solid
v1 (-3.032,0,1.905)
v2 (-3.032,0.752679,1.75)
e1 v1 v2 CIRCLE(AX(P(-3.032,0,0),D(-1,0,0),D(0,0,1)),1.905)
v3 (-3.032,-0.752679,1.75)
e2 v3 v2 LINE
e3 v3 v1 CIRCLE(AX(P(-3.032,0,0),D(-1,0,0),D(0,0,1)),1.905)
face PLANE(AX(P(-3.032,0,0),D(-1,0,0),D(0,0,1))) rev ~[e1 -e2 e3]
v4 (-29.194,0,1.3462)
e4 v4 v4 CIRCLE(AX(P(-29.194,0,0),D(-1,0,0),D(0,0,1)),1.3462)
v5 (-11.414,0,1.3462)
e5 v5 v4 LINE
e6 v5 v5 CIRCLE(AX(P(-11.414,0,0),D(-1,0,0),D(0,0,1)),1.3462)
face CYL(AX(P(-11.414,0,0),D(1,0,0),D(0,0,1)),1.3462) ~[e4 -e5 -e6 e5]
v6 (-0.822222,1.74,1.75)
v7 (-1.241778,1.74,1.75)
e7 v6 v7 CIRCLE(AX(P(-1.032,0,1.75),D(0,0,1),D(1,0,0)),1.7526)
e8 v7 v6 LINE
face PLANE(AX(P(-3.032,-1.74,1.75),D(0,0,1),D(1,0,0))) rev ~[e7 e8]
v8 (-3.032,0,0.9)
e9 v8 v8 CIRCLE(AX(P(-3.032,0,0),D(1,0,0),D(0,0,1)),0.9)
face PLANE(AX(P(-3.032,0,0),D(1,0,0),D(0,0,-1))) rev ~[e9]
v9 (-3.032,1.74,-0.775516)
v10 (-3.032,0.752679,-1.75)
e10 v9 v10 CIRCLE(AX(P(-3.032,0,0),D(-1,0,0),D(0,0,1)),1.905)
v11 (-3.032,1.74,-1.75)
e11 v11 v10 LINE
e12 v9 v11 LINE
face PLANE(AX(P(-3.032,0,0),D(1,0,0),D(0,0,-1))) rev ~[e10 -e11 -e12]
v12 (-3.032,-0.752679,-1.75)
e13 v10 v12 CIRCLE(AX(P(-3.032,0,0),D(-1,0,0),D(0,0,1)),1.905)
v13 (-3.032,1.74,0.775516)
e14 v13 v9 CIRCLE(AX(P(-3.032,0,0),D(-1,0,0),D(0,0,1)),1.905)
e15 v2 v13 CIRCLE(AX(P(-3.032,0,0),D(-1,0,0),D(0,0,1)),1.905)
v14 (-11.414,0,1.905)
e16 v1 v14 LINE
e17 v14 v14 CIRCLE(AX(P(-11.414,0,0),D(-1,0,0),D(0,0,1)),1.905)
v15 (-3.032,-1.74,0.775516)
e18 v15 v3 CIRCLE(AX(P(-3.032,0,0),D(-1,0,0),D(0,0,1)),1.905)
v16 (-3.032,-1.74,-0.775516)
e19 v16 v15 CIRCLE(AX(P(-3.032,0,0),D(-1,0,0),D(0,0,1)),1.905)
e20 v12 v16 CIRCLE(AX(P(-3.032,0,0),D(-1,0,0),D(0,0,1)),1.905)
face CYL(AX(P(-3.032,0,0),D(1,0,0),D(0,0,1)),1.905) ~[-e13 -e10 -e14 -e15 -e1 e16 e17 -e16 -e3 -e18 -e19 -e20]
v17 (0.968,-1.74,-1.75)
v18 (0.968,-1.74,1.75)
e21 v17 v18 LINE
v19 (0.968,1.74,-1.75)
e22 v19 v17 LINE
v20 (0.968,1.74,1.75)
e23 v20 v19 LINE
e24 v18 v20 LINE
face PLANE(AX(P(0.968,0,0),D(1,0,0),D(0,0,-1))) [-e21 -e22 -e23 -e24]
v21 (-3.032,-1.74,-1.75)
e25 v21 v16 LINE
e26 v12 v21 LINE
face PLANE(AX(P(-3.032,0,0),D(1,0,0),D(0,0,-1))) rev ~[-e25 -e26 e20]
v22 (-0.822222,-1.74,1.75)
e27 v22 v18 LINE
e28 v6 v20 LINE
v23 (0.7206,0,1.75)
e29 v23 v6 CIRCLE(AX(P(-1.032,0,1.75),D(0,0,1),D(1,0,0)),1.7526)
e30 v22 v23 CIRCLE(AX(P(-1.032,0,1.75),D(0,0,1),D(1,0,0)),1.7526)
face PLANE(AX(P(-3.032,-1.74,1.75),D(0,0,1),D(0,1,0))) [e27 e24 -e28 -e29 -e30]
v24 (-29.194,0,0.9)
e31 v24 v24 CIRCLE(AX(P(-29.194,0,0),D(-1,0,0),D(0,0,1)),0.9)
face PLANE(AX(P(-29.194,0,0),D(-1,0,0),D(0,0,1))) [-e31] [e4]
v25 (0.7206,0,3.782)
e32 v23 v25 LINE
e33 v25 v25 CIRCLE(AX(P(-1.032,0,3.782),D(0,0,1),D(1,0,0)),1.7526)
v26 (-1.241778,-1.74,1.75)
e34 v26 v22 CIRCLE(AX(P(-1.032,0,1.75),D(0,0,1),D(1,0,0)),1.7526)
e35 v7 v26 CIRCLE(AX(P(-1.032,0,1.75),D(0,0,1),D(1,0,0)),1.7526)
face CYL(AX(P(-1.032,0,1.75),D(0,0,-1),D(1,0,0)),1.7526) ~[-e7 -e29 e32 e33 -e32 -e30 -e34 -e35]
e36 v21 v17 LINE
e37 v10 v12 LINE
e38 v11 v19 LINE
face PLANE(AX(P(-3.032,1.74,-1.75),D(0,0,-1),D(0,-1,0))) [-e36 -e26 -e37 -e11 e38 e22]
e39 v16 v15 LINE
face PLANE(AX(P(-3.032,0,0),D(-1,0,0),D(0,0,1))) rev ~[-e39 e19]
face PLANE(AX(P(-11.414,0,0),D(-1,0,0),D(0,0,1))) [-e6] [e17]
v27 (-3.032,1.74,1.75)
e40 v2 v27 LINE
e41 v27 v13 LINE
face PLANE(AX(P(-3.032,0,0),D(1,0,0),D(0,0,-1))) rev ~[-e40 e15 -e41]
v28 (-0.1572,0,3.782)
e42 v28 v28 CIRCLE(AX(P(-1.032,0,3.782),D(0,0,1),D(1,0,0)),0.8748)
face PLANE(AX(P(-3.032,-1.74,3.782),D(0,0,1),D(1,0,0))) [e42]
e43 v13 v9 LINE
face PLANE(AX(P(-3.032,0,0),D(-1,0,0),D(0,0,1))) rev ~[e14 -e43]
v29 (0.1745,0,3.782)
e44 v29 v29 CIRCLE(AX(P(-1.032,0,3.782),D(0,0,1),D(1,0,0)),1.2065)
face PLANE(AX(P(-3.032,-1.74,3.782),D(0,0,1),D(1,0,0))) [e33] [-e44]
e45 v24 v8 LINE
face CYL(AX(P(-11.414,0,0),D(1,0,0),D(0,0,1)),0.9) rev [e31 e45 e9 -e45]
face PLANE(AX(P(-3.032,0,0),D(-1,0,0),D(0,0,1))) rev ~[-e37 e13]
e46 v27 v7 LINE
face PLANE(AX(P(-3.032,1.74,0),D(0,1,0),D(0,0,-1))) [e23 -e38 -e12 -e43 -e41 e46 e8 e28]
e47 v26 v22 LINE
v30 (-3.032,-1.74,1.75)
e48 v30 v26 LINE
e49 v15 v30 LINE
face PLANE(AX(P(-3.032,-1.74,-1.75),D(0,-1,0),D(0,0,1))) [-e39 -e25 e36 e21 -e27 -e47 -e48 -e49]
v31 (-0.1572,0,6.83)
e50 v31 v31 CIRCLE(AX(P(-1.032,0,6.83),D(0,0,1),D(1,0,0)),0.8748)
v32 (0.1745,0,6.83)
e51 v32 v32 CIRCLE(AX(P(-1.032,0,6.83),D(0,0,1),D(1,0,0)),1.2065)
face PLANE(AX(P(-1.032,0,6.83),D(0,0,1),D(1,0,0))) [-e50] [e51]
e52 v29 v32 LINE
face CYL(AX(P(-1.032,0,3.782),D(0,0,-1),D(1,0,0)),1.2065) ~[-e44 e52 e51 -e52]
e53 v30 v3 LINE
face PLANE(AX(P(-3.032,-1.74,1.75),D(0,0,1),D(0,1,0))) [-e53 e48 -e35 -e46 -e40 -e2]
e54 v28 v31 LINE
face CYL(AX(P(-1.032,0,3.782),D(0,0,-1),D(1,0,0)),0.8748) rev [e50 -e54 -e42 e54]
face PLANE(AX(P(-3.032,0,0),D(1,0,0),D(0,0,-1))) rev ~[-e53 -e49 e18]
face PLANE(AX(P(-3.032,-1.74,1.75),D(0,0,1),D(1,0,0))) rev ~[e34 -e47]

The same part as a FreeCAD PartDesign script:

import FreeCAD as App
import Part
import Sketcher
from FreeCAD import Vector
Q = App.Units.Quantity

doc = App.newDocument("Part")
params = doc.addObject("Spreadsheet::Sheet", "Params")
for row, (alias, value) in enumerate([
    ("sketch1_diameter", "0.095 in"),
    ("pad1_length", "1 mm"),
    ("pad2_length", "0.08 in"),
    ("sketch3_diameter", "0.15 in"),
    ("pad3_length", "0.33 in"),
    ("sketch4_diameter", "0.106 in"),
    ("pad4_length", "0.7 in"),
    ("sketch5_width", "0.137 in"),
    ("pad5_length", "4 mm"),
    ("sketch6_diameter", "0.138 in"),
    ("pad6_length", "0.08 in"),
    ("sketch7_diameter", "0.095 in"),
    ("pad7_length", "0.12 in"),
], start=1):
    params.set(f"A{row}", alias)
    params.set(f"B{row}", "=" + value)
    params.setAlias(f"B{row}", alias)

body = doc.addObject("PartDesign::Body", "Body")

# Sketch on YZ plane
sketch1 = body.newObject("Sketcher::SketchObject", "Sketch")
sketch1.AttachmentSupport = (doc.getObject("YZ_Plane"), [""])
sketch1.MapMode = "FlatFace"
sketch1.addGeometry([
    Part.Circle(Vector(0, 0, 0), Vector(0, 0, 1), 1.2),
    Part.Circle(Vector(0, 0, 0), Vector(0, 0, 1), 0.9),
], False)
sketch1.addConstraint([
    Sketcher.Constraint("Coincident", 0, 3, -1, 1),
    Sketcher.Constraint("Coincident", 1, 3, -1, 1),
    Sketcher.Constraint("Diameter", 0, Q("0.095 in")),
    Sketcher.Constraint("Diameter", 1, 1.8),
])
sketch1.setExpression("Constraints[2]", "Params.sketch1_diameter")
pad1 = body.newObject("PartDesign::Pad", "Pad")
pad1.Profile = sketch1
pad1.setExpression("Length", "Params.pad1_length")
pad1.Reversed = True

# Sketch on YZ plane
sketch2 = body.newObject("Sketcher::SketchObject", "Sketch001")
sketch2.AttachmentSupport = (doc.getObject("YZ_Plane"), [""])
sketch2.MapMode = "FlatFace"
sketch2.AttachmentOffset = App.Placement(Vector(0, 0, -1), App.Rotation())
sketch2.addGeometry([
    Part.Circle(Vector(0, 0, 0), Vector(0, 0, 1), 1),
    Part.Circle(Vector(0, 0, 0), Vector(0, 0, 1), 0.9),
], False)
sketch2.addConstraint([
    Sketcher.Constraint("Coincident", 0, 3, -1, 1),
    Sketcher.Constraint("Coincident", 1, 3, -1, 1),
    Sketcher.Constraint("Diameter", 0, 2.0),
    Sketcher.Constraint("Diameter", 1, 1.8),
])
pad2 = body.newObject("PartDesign::Pad", "Pad001")
pad2.Profile = sketch2
pad2.setExpression("Length", "Params.pad2_length")
pad2.Reversed = True

# Sketch on YZ plane
sketch3 = body.newObject("Sketcher::SketchObject", "Sketch002")
sketch3.AttachmentSupport = (doc.getObject("YZ_Plane"), [""])
sketch3.MapMode = "FlatFace"
sketch3.AttachmentOffset = App.Placement(Vector(0, 0, -3.032), App.Rotation())
sketch3.addGeometry([
    Part.Circle(Vector(0, 0, 0), Vector(0, 0, 1), 1.9),
    Part.Circle(Vector(0, 0, 0), Vector(0, 0, 1), 0.9),
], False)
sketch3.addConstraint([
    Sketcher.Constraint("Coincident", 0, 3, -1, 1),
    Sketcher.Constraint("Coincident", 1, 3, -1, 1),
    Sketcher.Constraint("Diameter", 0, Q("0.15 in")),
    Sketcher.Constraint("Diameter", 1, 1.8),
])
sketch3.setExpression("Constraints[2]", "Params.sketch3_diameter")
pad3 = body.newObject("PartDesign::Pad", "Pad002")
pad3.Profile = sketch3
pad3.setExpression("Length", "Params.pad3_length")
pad3.Reversed = True

# Sketch on YZ plane
sketch4 = body.newObject("Sketcher::SketchObject", "Sketch003")
sketch4.AttachmentSupport = (doc.getObject("YZ_Plane"), [""])
sketch4.MapMode = "FlatFace"
sketch4.AttachmentOffset = App.Placement(Vector(0, 0, -11.414), App.Rotation())
sketch4.addGeometry([
    Part.Circle(Vector(0, 0, 0), Vector(0, 0, 1), 1.3),
    Part.Circle(Vector(0, 0, 0), Vector(0, 0, 1), 0.9),
], False)
sketch4.addConstraint([
    Sketcher.Constraint("Coincident", 0, 3, -1, 1),
    Sketcher.Constraint("Coincident", 1, 3, -1, 1),
    Sketcher.Constraint("Diameter", 0, Q("0.106 in")),
    Sketcher.Constraint("Diameter", 1, 1.8),
])
sketch4.setExpression("Constraints[2]", "Params.sketch4_diameter")
pad4 = body.newObject("PartDesign::Pad", "Pad003")
pad4.Profile = sketch4
pad4.setExpression("Length", "Params.pad4_length")
pad4.Reversed = True

# Sketch on YZ plane
sketch5 = body.newObject("Sketcher::SketchObject", "Sketch004")
sketch5.AttachmentSupport = (doc.getObject("YZ_Plane"), [""])
sketch5.MapMode = "FlatFace"
sketch5.AttachmentOffset = App.Placement(Vector(0, 0, -3.032), App.Rotation())
sketch5.addGeometry([
    Part.LineSegment(Vector(1.7, -1.8, 0), Vector(1.7, 1.8, 0)),
    Part.LineSegment(Vector(1.7, 1.8, 0), Vector(-1.7, 1.8, 0)),
    Part.LineSegment(Vector(-1.7, 1.8, 0), Vector(-1.7, -1.8, 0)),
    Part.LineSegment(Vector(-1.7, -1.8, 0), Vector(1.7, -1.8, 0)),
], False)
sketch5.addConstraint([
    Sketcher.Constraint("Coincident", 0, 2, 1, 1),
    Sketcher.Constraint("Coincident", 1, 2, 2, 1),
    Sketcher.Constraint("Coincident", 2, 2, 3, 1),
    Sketcher.Constraint("Coincident", 3, 2, 0, 1),
    Sketcher.Constraint("Vertical", 0),
    Sketcher.Constraint("Horizontal", 1),
    Sketcher.Constraint("Vertical", 2),
    Sketcher.Constraint("Horizontal", 3),
    Sketcher.Constraint("Symmetric", 0, 2, 2, 2, -1, 1),
    Sketcher.Constraint("DistanceX", 1, 2, 1, 1, Q("0.137 in")),
    Sketcher.Constraint("DistanceY", 0, 1, 0, 2, Q("0.1378 in")),
])
sketch5.setExpression("Constraints[9]", "Params.sketch5_width")
pad5 = body.newObject("PartDesign::Pad", "Pad004")
pad5.Profile = sketch5
pad5.setExpression("Length", "Params.pad5_length")

# Sketch on XY plane
sketch6 = body.newObject("Sketcher::SketchObject", "Sketch005")
sketch6.AttachmentSupport = (doc.getObject("XY_Plane"), [""])
sketch6.MapMode = "FlatFace"
sketch6.AttachmentOffset = App.Placement(Vector(0, 0, 0.0688976 * 25.4), App.Rotation())
sketch6.addGeometry(Part.Circle(Vector(-1, 0, 0), Vector(0, 0, 1), 1.8), False)
sketch6.addConstraint([
    Sketcher.Constraint("PointOnObject", 0, 3, -1),
    Sketcher.Constraint("Diameter", 0, Q("0.138 in")),
    Sketcher.Constraint("DistanceX", 0, 3, -1, 1, 1.032),
])
sketch6.setExpression("Constraints[1]", "Params.sketch6_diameter")
pad6 = body.newObject("PartDesign::Pad", "Pad005")
pad6.Profile = sketch6
pad6.setExpression("Length", "Params.pad6_length")

# Sketch on XY plane
sketch7 = body.newObject("Sketcher::SketchObject", "Sketch006")
sketch7.AttachmentSupport = (doc.getObject("XY_Plane"), [""])
sketch7.MapMode = "FlatFace"
sketch7.AttachmentOffset = App.Placement(Vector(0, 0, 0.1488976 * 25.4), App.Rotation())
sketch7.addGeometry([
    Part.Circle(Vector(-1, 0, 0), Vector(0, 0, 1), 1.2),
    Part.Circle(Vector(-1, 0, 0), Vector(0, 0, 1), 0.9),
], False)
sketch7.addConstraint([
    Sketcher.Constraint("Coincident", 1, 3, 0, 3),
    Sketcher.Constraint("PointOnObject", 0, 3, -1),
    Sketcher.Constraint("Diameter", 0, Q("0.095 in")),
    Sketcher.Constraint("Diameter", 1, 1.7496),
    Sketcher.Constraint("DistanceX", 0, 3, -1, 1, 1.032),
])
sketch7.setExpression("Constraints[2]", "Params.sketch7_diameter")
pad7 = body.newObject("PartDesign::Pad", "Pad006")
pad7.Profile = sketch7
pad7.setExpression("Length", "Params.pad7_length")

doc.recompute()
